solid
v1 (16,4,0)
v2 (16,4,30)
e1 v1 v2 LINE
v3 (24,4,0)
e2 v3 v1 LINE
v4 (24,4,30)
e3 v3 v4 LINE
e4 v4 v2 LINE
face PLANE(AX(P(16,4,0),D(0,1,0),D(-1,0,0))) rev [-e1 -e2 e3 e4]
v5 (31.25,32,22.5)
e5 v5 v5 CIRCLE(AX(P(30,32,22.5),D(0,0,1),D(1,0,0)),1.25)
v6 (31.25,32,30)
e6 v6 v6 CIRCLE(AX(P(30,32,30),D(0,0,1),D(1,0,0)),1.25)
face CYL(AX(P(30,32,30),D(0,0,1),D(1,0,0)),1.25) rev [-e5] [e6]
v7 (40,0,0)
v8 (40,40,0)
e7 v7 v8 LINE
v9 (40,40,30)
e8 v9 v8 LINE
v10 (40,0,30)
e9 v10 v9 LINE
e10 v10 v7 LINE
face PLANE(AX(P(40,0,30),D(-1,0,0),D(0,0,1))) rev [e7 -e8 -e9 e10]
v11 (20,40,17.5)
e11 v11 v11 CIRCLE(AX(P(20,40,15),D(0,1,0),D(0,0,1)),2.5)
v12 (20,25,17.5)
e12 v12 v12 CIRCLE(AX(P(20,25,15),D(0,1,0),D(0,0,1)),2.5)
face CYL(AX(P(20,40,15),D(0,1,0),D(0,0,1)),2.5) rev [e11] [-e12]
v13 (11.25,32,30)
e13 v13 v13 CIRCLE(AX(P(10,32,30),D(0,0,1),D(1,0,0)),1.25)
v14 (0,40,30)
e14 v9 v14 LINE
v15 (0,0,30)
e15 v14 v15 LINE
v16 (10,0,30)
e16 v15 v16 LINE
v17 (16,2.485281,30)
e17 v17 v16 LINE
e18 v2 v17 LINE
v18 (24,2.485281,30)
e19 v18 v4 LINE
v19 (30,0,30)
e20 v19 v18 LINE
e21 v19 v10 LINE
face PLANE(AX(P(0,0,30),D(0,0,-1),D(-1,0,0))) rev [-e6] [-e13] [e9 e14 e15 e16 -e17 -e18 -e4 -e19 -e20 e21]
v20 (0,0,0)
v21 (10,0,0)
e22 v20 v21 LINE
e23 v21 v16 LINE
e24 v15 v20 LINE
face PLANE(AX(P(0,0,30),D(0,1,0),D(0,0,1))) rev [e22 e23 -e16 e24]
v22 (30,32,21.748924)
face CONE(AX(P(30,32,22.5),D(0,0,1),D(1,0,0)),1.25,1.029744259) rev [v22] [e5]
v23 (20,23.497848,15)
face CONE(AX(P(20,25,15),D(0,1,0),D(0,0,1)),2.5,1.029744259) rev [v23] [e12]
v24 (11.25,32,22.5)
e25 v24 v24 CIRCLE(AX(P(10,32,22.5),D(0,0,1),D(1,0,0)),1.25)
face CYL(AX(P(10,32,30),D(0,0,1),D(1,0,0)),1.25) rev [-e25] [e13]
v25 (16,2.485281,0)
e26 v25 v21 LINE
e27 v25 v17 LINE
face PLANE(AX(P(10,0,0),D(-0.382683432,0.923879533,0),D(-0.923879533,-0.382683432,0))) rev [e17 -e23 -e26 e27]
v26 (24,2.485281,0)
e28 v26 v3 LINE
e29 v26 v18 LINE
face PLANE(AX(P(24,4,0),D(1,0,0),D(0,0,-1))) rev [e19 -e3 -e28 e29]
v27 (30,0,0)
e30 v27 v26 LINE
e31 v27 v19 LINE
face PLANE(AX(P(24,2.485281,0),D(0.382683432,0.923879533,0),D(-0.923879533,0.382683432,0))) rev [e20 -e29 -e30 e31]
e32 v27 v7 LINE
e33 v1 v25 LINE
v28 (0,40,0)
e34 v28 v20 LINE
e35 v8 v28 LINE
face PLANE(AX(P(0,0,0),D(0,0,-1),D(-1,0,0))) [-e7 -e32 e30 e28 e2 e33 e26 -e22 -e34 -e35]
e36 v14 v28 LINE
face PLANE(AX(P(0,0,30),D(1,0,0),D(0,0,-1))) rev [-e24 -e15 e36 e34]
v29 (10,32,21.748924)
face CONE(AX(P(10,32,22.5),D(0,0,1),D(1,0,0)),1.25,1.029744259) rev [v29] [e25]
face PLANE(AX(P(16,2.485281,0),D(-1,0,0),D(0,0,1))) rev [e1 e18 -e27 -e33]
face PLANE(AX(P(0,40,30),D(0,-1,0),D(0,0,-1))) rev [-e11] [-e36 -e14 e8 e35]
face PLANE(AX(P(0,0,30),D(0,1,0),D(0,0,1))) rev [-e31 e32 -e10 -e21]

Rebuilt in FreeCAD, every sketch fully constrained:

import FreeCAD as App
import Part
import Sketcher
from FreeCAD import Vector
Q = App.Units.Quantity

doc = App.newDocument("Part")
params = doc.addObject("Spreadsheet::Sheet", "Params")
for row, (alias, value) in enumerate([
    ("sketch1_width", "40 mm"),
    ("pad1_length", "30 mm"),
    ("sketch2_width", "20 mm"),
    ("sketch2_width2", "8 mm"),
    ("sketch3_diameter", "5 mm"),
    ("hole_diameter", "5 mm"),
    ("hole_depth", "15 mm"),
    ("sketch4_diameter", "2.5 mm"),
    ("hole2_diameter", "2.5 mm"),
    ("hole2_depth", "7.5 mm"),
], start=1):
    params.set(f"A{row}", alias)
    params.set(f"B{row}", "=" + value)
    params.setAlias(f"B{row}", alias)

body = doc.addObject("PartDesign::Body", "Body")

sketch1 = body.newObject("Sketcher::SketchObject", "Sketch")
sketch1.AttachmentSupport = (doc.getObject("XY_Plane"), [""])
sketch1.MapMode = "FlatFace"
sketch1.addGeometry(Part.LineSegment(Vector(0, 40, 0), Vector(0, 0, 0)), False)
sketch1.addGeometry(Part.LineSegment(Vector(0, 0, 0), Vector(40, 0, 0)), False)
sketch1.addGeometry(Part.LineSegment(Vector(40, 0, 0), Vector(40, 40, 0)), False)
sketch1.addGeometry(Part.LineSegment(Vector(40, 40, 0), Vector(0, 40, 0)), False)
sketch1.addConstraint(Sketcher.Constraint("Coincident", 0, 2, 1, 1))
sketch1.addConstraint(Sketcher.Constraint("Coincident", 1, 2, 2, 1))
sketch1.addConstraint(Sketcher.Constraint("Coincident", 2, 2, 3, 1))
sketch1.addConstraint(Sketcher.Constraint("Coincident", 3, 2, 0, 1))
sketch1.addConstraint(Sketcher.Constraint("Vertical", 0))
sketch1.addConstraint(Sketcher.Constraint("Horizontal", 1))
sketch1.addConstraint(Sketcher.Constraint("Vertical", 2))
sketch1.addConstraint(Sketcher.Constraint("Horizontal", 3))
sketch1.addConstraint(Sketcher.Constraint("Coincident", 0, 2, -1, 1))
sketch1.addConstraint(Sketcher.Constraint("Equal", 3, 0))
sketch1.addConstraint(Sketcher.Constraint("DistanceX", 1, 1, 1, 2, 40.0))
sketch1.setExpression("Constraints[10]", "Params.sketch1_width")
pad1 = body.newObject("PartDesign::Pad", "Pad")
pad1.Profile = sketch1
pad1.setExpression("Length", "Params.pad1_length")

sketch2 = body.newObject("Sketcher::SketchObject", "Sketch001")
sketch2.AttachmentSupport = (doc.getObject("XY_Plane"), [""])
sketch2.MapMode = "FlatFace"
sketch2.AttachmentOffset = App.Placement(Vector(0, 0, 30), App.Rotation())
sketch2.addGeometry(Part.LineSegment(Vector(16, 2.485281, 0), Vector(10, 0, 0)), False)
sketch2.addGeometry(Part.LineSegment(Vector(10, 0, 0), Vector(30, 0, 0)), False)
sketch2.addGeometry(Part.LineSegment(Vector(30, 0, 0), Vector(24, 2.485281, 0)), False)
sketch2.addGeometry(Part.LineSegment(Vector(24, 2.485281, 0), Vector(24, 4, 0)), False)
sketch2.addGeometry(Part.LineSegment(Vector(24, 4, 0), Vector(16, 4, 0)), False)
sketch2.addGeometry(Part.LineSegment(Vector(16, 4, 0), Vector(16, 2.485281, 0)), False)
sketch2.addConstraint(Sketcher.Constraint("Coincident", 0, 2, 1, 1))
sketch2.addConstraint(Sketcher.Constraint("Coincident", 1, 2, 2, 1))
sketch2.addConstraint(Sketcher.Constraint("Coincident", 2, 2, 3, 1))
sketch2.addConstraint(Sketcher.Constraint("Coincident", 3, 2, 4, 1))
sketch2.addConstraint(Sketcher.Constraint("Coincident", 4, 2, 5, 1))
sketch2.addConstraint(Sketcher.Constraint("Coincident", 5, 2, 0, 1))
sketch2.addConstraint(Sketcher.Constraint("Horizontal", 1))
sketch2.addConstraint(Sketcher.Constraint("Vertical", 3))
sketch2.addConstraint(Sketcher.Constraint("Horizontal", 4))
sketch2.addConstraint(Sketcher.Constraint("Vertical", 5))
sketch2.addConstraint(Sketcher.Constraint("PointOnObject", 0, 2, -1))
sketch2.addConstraint(Sketcher.Constraint("Horizontal", 2, 2, 5, 2))
sketch2.addConstraint(Sketcher.Constraint("Equal", 0, 2))
sketch2.addConstraint(Sketcher.Constraint("DistanceX", 1, 1, 1, 2, 20.0))
sketch2.addConstraint(Sketcher.Constraint("DistanceX", 4, 2, 4, 1, 8.0))
sketch2.addConstraint(Sketcher.Constraint("DistanceX", -1, 1, 0, 2, 10.0))
sketch2.addConstraint(Sketcher.Constraint("DistanceY", -1, 1, 3, 2, 4.0))
sketch2.addConstraint(Sketcher.Constraint("Angle", 0, Q("-157.5 deg")))
sketch2.setExpression("Constraints[13]", "Params.sketch2_width")
sketch2.setExpression("Constraints[14]", "Params.sketch2_width2")
pocket1 = body.newObject("PartDesign::Pocket", "Pocket")
pocket1.Profile = sketch2
pocket1.Type = "ThroughAll"

sketch3 = body.newObject("Sketcher::SketchObject", "Sketch002")
sketch3.AttachmentSupport = (doc.getObject("XZ_Plane"), [""])
sketch3.MapMode = "FlatFace"
sketch3.AttachmentOffset = App.Placement(Vector(0, 0, -40), App.Rotation())
sketch3.addGeometry(Part.Circle(Vector(20, 15, 0), Vector(0, 0, 1), 2.5), False)
sketch3.addConstraint(Sketcher.Constraint("Diameter", 0, 5.0))
sketch3.addConstraint(Sketcher.Constraint("DistanceX", -1, 1, 0, 3, 20.0))
sketch3.addConstraint(Sketcher.Constraint("DistanceY", -1, 1, 0, 3, 15.0))
sketch3.setExpression("Constraints[0]", "Params.sketch3_diameter")
doc.recompute()
hole = body.newObject("PartDesign::Hole", "Hole")
hole.Profile = sketch3
hole.ThreadType = "None"
hole.setExpression("Diameter", "Params.hole_diameter")
hole.DepthType = "Dimension"
hole.setExpression("Depth", "Params.hole_depth")
hole.DrillPoint = "Angled"
hole.DrillPointAngle = 118
hole.Reversed = True

sketch4 = body.newObject("Sketcher::SketchObject", "Sketch003")
sketch4.AttachmentSupport = (doc.getObject("XY_Plane"), [""])
sketch4.MapMode = "FlatFace"
sketch4.AttachmentOffset = App.Placement(Vector(0, 0, 30), App.Rotation())
sketch4.addGeometry(Part.Circle(Vector(10, 32, 0), Vector(0, 0, 1), 1.25), False)
sketch4.addGeometry(Part.Circle(Vector(30, 32, 0), Vector(0, 0, 1), 1.25), False)
sketch4.addConstraint(Sketcher.Constraint("Equal", 0, 1))
sketch4.addConstraint(Sketcher.Constraint("Horizontal", 0, 3, 1, 3))
sketch4.addConstraint(Sketcher.Constraint("Diameter", 0, 2.5))
sketch4.addConstraint(Sketcher.Constraint("DistanceX", -1, 1, 0, 3, 10.0))
sketch4.addConstraint(Sketcher.Constraint("DistanceY", -1, 1, 0, 3, 32.0))
sketch4.addConstraint(Sketcher.Constraint("DistanceX", -1, 1, 1, 3, 30.0))
sketch4.setExpression("Constraints[2]", "Params.sketch4_diameter")
doc.recompute()
hole2 = body.newObject("PartDesign::Hole", "Hole001")
hole2.Profile = sketch4
hole2.ThreadType = "None"
hole2.setExpression("Diameter", "Params.hole2_diameter")
hole2.DepthType = "Dimension"
hole2.setExpression("Depth", "Params.hole2_depth")
hole2.DrillPoint = "Angled"
hole2.DrillPointAngle = 118

doc.recompute()
